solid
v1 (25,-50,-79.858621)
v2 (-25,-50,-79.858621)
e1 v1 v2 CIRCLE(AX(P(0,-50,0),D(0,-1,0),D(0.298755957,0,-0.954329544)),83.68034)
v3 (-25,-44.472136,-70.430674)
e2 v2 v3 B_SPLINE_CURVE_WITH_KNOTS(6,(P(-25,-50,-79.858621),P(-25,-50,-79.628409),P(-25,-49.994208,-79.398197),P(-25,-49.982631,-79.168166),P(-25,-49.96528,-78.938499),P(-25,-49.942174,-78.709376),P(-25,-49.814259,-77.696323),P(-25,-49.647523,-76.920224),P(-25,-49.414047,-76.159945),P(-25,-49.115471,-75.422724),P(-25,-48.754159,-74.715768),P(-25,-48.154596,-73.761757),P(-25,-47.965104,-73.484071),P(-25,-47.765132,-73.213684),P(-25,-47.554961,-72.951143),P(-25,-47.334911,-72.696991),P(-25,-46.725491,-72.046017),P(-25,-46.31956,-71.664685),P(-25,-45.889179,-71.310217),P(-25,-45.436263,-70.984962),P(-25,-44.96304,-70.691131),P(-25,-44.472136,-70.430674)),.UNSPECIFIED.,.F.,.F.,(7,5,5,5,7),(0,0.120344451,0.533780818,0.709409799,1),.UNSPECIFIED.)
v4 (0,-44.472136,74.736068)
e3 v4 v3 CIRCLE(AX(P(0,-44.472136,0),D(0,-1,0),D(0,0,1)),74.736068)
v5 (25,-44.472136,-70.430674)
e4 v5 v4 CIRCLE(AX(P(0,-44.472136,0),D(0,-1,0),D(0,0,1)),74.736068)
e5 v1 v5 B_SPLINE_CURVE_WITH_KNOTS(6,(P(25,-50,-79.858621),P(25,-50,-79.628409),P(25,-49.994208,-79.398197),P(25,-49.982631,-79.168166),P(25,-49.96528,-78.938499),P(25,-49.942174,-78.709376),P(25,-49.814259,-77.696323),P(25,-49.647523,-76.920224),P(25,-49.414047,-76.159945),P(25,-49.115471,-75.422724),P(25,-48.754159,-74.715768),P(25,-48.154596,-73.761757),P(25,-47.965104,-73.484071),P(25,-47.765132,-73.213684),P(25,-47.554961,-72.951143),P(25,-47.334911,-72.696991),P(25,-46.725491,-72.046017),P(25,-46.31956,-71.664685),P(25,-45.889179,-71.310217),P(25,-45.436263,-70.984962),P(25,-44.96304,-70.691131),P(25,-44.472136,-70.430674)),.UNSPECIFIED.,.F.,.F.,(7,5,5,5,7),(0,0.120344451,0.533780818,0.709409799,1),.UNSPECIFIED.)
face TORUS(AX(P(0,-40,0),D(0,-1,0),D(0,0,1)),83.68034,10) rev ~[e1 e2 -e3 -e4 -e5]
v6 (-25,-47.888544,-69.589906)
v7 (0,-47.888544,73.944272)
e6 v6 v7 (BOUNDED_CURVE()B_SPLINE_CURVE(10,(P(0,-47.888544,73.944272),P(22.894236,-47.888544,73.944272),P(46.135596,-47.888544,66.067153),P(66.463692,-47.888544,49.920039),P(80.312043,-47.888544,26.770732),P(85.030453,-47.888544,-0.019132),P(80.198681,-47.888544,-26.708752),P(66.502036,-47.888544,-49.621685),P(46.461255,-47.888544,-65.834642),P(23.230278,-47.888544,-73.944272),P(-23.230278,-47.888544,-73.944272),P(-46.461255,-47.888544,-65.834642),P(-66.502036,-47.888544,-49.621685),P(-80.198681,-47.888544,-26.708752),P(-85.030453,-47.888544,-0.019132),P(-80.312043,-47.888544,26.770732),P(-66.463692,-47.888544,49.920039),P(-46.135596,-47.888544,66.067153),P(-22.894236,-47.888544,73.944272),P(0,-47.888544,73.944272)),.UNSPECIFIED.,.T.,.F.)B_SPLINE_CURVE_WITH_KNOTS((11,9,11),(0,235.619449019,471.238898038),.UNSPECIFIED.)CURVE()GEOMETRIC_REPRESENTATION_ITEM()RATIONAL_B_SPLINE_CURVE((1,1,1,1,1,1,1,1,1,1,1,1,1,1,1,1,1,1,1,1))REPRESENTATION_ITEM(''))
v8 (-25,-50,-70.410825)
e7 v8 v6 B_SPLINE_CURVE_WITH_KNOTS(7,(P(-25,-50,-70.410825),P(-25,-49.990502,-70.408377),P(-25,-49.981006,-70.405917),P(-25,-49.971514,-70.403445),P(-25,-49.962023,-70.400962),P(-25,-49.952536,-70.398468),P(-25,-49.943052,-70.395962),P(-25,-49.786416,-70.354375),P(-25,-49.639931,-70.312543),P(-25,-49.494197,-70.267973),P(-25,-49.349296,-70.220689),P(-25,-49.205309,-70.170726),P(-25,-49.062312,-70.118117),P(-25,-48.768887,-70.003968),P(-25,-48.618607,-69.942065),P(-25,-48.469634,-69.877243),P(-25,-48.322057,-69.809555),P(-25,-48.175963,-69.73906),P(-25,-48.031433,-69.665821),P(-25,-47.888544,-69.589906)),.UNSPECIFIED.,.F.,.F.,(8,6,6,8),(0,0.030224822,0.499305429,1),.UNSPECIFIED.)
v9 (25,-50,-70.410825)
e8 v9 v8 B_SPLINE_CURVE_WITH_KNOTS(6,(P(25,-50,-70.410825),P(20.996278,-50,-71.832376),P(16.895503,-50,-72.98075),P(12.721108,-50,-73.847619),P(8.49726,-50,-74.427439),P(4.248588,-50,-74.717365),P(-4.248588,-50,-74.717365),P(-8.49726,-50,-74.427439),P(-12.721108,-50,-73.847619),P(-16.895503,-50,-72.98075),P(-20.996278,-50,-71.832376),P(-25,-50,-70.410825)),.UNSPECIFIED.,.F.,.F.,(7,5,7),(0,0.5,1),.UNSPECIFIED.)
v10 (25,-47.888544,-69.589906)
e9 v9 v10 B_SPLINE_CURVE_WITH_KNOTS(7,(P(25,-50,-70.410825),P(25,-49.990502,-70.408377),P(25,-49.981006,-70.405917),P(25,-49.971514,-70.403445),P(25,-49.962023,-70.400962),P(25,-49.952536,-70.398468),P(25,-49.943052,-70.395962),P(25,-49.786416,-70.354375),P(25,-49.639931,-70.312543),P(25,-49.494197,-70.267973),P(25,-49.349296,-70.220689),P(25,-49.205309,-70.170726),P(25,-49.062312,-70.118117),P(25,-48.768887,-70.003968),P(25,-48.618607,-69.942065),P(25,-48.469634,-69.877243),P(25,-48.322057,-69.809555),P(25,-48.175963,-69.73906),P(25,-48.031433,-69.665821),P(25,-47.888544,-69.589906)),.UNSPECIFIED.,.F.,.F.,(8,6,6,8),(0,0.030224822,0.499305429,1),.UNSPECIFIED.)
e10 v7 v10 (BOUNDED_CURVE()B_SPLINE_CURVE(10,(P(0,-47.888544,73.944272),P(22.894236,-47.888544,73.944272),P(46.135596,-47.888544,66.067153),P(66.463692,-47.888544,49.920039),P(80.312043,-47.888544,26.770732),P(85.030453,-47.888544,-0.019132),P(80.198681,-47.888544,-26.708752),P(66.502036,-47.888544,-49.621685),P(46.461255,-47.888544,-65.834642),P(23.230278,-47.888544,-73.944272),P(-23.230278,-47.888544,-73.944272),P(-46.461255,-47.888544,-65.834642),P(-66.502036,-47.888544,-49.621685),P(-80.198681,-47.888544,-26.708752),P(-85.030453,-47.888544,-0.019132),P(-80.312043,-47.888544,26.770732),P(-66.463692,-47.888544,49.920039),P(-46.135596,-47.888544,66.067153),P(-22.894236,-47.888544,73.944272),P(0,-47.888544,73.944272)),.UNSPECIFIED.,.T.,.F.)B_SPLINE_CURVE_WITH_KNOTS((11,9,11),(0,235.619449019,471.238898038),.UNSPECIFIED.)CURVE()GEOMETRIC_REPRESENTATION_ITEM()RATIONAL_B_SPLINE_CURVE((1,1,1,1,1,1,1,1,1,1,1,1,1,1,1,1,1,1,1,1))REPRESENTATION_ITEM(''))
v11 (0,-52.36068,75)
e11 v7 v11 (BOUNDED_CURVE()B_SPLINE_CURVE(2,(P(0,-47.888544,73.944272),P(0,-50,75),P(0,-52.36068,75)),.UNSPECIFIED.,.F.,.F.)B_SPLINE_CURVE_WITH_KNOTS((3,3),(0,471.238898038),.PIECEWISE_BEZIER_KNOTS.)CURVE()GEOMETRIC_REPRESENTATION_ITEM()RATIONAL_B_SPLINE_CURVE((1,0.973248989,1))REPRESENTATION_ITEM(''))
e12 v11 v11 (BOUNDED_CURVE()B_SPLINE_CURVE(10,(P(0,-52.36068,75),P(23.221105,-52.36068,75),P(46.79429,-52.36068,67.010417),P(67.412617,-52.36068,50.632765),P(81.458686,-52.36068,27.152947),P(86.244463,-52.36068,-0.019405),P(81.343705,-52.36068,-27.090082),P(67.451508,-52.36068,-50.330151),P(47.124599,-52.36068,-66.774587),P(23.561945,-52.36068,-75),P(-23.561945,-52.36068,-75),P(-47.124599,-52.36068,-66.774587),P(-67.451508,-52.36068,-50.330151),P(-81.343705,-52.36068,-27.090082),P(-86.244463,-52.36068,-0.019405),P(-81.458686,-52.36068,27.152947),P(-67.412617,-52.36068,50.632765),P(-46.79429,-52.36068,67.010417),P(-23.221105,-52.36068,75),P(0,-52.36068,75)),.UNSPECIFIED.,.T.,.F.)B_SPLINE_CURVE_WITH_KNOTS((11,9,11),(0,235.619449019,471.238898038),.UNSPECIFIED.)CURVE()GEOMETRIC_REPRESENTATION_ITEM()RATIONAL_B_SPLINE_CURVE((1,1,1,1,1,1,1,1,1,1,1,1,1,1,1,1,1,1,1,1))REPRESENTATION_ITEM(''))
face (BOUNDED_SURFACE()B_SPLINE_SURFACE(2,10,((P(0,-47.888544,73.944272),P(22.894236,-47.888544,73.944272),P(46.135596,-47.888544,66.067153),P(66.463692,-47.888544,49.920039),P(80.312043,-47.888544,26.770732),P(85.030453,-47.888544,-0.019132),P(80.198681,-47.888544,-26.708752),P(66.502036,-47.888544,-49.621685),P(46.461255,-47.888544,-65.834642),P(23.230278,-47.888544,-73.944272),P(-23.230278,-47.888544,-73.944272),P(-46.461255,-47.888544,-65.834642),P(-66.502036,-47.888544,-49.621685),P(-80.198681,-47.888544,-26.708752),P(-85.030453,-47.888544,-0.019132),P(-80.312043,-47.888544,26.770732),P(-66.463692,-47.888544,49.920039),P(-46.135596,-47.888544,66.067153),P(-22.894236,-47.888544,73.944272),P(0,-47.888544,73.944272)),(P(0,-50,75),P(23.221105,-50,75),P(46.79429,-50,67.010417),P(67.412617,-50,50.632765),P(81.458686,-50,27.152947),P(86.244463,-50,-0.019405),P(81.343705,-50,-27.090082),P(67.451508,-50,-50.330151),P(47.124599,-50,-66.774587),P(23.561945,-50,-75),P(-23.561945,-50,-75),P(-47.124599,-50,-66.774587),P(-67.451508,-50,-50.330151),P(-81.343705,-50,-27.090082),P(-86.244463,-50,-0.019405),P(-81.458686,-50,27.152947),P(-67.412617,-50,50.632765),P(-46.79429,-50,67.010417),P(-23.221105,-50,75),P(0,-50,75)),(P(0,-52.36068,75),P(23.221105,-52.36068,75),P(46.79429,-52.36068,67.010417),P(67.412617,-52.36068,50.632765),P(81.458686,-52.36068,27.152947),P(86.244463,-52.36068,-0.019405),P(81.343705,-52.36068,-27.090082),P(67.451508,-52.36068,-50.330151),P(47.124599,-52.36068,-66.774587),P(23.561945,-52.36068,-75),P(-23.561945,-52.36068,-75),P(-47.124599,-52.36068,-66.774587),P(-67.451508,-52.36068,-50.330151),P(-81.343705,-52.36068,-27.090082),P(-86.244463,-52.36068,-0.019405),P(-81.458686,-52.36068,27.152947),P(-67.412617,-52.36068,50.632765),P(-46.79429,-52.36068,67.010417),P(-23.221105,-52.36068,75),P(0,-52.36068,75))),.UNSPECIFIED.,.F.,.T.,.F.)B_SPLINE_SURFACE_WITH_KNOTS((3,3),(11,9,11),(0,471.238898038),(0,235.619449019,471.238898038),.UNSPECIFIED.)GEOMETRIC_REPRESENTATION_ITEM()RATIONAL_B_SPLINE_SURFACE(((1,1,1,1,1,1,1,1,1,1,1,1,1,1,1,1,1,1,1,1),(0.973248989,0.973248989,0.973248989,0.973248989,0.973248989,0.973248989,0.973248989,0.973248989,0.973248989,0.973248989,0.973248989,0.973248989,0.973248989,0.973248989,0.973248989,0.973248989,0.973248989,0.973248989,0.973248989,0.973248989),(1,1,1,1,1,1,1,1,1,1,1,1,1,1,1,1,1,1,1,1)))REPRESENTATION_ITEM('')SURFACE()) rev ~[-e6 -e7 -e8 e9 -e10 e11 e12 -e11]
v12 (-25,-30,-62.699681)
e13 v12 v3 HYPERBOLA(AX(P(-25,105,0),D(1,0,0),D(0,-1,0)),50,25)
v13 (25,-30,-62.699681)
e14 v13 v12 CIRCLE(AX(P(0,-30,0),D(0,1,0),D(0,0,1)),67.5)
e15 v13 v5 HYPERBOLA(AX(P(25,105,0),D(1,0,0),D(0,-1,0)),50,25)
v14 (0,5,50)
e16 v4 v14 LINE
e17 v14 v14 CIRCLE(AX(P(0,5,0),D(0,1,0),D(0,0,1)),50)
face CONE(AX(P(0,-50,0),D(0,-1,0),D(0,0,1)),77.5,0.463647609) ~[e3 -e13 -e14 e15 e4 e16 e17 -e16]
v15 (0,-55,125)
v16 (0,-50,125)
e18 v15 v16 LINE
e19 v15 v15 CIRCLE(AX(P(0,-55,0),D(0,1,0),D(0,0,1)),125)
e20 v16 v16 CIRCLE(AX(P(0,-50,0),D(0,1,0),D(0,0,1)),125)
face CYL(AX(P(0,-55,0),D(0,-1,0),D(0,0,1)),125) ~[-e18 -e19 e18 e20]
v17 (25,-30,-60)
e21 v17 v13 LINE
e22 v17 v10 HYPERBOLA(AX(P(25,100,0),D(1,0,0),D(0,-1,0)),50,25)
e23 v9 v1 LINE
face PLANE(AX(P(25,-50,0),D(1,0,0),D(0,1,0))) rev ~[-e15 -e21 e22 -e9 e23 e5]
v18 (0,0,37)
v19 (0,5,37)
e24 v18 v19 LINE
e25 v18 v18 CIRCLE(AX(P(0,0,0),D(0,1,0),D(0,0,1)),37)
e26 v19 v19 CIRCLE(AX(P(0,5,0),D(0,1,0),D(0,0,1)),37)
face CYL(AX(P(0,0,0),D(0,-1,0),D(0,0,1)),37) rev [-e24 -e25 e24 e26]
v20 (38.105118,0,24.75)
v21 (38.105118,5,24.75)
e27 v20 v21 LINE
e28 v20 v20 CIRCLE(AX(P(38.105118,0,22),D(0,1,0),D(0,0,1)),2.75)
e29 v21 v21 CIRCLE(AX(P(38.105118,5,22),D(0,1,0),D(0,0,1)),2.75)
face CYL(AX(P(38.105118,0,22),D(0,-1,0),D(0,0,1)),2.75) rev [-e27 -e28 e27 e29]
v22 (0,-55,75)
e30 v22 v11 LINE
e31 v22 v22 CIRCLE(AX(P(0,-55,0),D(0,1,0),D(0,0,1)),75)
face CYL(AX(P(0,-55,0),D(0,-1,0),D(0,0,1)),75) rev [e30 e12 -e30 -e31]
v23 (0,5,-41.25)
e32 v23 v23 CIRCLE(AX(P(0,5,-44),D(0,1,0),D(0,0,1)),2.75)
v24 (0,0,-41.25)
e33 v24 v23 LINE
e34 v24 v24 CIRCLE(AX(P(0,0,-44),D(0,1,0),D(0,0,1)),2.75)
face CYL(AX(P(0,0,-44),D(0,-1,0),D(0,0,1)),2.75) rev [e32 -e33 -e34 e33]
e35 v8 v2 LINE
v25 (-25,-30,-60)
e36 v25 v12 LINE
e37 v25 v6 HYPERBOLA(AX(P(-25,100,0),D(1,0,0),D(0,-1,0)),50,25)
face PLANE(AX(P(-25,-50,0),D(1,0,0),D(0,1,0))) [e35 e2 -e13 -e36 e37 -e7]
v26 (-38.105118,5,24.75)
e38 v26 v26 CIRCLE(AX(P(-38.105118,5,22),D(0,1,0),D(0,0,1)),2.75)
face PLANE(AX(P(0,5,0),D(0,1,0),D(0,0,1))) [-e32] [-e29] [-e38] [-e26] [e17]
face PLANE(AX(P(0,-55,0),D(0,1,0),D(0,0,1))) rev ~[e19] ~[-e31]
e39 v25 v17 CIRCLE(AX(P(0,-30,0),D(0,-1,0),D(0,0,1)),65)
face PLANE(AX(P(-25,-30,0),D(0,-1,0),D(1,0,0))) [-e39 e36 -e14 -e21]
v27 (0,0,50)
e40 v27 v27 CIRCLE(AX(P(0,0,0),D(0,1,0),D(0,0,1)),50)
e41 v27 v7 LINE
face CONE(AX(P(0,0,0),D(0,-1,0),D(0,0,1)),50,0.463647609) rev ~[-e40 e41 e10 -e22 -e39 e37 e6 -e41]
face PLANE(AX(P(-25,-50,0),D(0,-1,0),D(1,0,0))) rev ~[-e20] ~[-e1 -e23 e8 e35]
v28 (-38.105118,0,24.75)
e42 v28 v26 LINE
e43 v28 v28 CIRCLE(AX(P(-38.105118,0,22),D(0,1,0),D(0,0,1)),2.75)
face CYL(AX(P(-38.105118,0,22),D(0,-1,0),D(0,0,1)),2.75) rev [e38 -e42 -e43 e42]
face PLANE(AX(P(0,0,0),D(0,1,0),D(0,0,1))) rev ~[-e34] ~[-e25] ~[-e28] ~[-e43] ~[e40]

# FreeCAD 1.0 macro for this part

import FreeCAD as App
import Part
import Sketcher
from FreeCAD import Vector


def edges_at(feature, points):
    """Names of the edges that pass closest to the given points."""
    edges = feature.Shape.Edges
    near = lambda p: min(range(len(edges)), key=lambda i: edges[i].distToShape(Part.Vertex(*p))[0])
    return sorted({f"Edge{near(p) + 1}" for p in points})

doc = App.newDocument("Part")
body = doc.addObject("PartDesign::Body", "Body")

# Sketch on XZ plane
sketch1 = body.newObject("Sketcher::SketchObject", "Sketch")
sketch1.AttachmentSupport = (doc.getObject("XZ_Plane"), [""])
sketch1.MapMode = "FlatFace"
sketch1.addGeometry([
    Part.Circle(Vector(0, 0, 0), Vector(0, 0, 1), 50),  # 0
    Part.Circle(Vector(0, -44, 0), Vector(0, 0, 1), 2.8),  # 1
    Part.Circle(Vector(-38.1, 22, 0), Vector(0, 0, 1), 2.8),  # 2
    Part.Circle(Vector(0, 0, 0), Vector(0, 0, 1), 37),  # 3
    Part.Circle(Vector(38.1, 22, 0), Vector(0, 0, 1), 2.8),  # 4
], False)
sketch1.addConstraint([
    Sketcher.Constraint("Coincident", 0, 3, -1, 1),
    Sketcher.Constraint("Coincident", 3, 3, -1, 1),
    Sketcher.Constraint("Equal", 1, 2),
    Sketcher.Constraint("Equal", 2, 4),
    Sketcher.Constraint("Symmetric", 2, 3, 4, 3, -2),
    Sketcher.Constraint("PointOnObject", 1, 3, -2),
    Sketcher.Constraint("Diameter", 0, 100.0),
    Sketcher.Constraint("Diameter", 3, 74.0),
    Sketcher.Constraint("Diameter", 1, 5.5),
    Sketcher.Constraint("DistanceY", 1, 3, -1, 1, 44.0),
    Sketcher.Constraint("DistanceY", -1, 1, 2, 3, 22.0),
    Sketcher.Constraint("DistanceX", 2, 3, -1, 1, 38.105118),
])
pad1 = body.newObject("PartDesign::Pad", "Pad")
pad1.Profile = sketch1
pad1.Length = 5
pad1.Reversed = True
body2 = doc.addObject("PartDesign::Body", "Body001")

# Sketch on XZ plane
sketch2 = body2.newObject("Sketcher::SketchObject", "Sketch001")
sketch2.AttachmentSupport = (doc.getObject("XZ_Plane001"), [""])
sketch2.MapMode = "FlatFace"
sketch2.AttachmentOffset = App.Placement(Vector(0, 0, 55), App.Rotation())
sketch2.addGeometry([
    Part.Circle(Vector(0, 0, 0), Vector(0, 0, 1), 125),
    Part.Circle(Vector(0, 0, 0), Vector(0, 0, 1), 75),
], False)
sketch2.addConstraint([
    Sketcher.Constraint("Coincident", 0, 3, -1, 1),
    Sketcher.Constraint("Coincident", 1, 3, -1, 1),
    Sketcher.Constraint("Diameter", 0, 250.0),
    Sketcher.Constraint("Diameter", 1, 150.0),
])
pad2 = body2.newObject("PartDesign::Pad", "Pad001")
pad2.Profile = sketch2
pad2.Length = 5
pad2.Reversed = True
body.AllowCompound = True
doc.recompute()

boolean = body.newObject("PartDesign::Boolean", "Boolean")
boolean.Type = "Fuse"
boolean.addObjects([body2])

# Sketch on XY plane
sketch3 = body.newObject("Sketcher::SketchObject", "Sketch002")
sketch3.AttachmentSupport = (doc.getObject("XY_Plane"), [""])
sketch3.MapMode = "FlatFace"
sketch3.addGeometry([
    Part.LineSegment(Vector(-75, -50, 0), Vector(-50, 0, 0)),
    Part.LineSegment(Vector(-50, 0, 0), Vector(-50, 5, 0)),
    Part.LineSegment(Vector(-50, 5, 0), Vector(-77.5, -50, 0)),
    Part.LineSegment(Vector(-77.5, -50, 0), Vector(-75, -50, 0)),
], False)
sketch3.addConstraint([
    Sketcher.Constraint("Coincident", 0, 2, 1, 1),
    Sketcher.Constraint("Coincident", 1, 2, 2, 1),
    Sketcher.Constraint("Coincident", 2, 2, 3, 1),
    Sketcher.Constraint("Coincident", 3, 2, 0, 1),
    Sketcher.Constraint("Vertical", 1),
    Sketcher.Constraint("Horizontal", 3),
    Sketcher.Constraint("PointOnObject", 0, 2, -1),
    Sketcher.Constraint("Parallel", 0, 2),
    Sketcher.Constraint("DistanceY", 1, 1, 1, 2, 5.0),
    Sketcher.Constraint("DistanceX", 3, 1, 3, 2, 2.5),
    Sketcher.Constraint("DistanceX", 0, 2, -1, 1, 50.0),
    Sketcher.Constraint("DistanceY", 2, 2, -1, 1, 50.0),
])
revolution = body.newObject("PartDesign::Revolution", "Revolution")
revolution.Profile = sketch3
revolution.ReferenceAxis = (sketch3, ["V_Axis"])
revolution.Angle = 360
doc.recompute()

fillet = body.newObject("PartDesign::Fillet", "Fillet")
fillet.Base = (revolution, edges_at(revolution, [(0, -50, -75), (0, -50, -77.5)]))
fillet.Radius = 10

# Sketch on XY plane
sketch4 = body.newObject("Sketcher::SketchObject", "Sketch003")
sketch4.AttachmentSupport = (doc.getObject("XY_Plane"), [""])
sketch4.MapMode = "FlatFace"
sketch4.addGeometry([
    Part.LineSegment(Vector(-25, -30, 0), Vector(-25, -50, 0)),
    Part.LineSegment(Vector(-25, -50, 0), Vector(25, -50, 0)),
    Part.LineSegment(Vector(25, -50, 0), Vector(25, -30, 0)),
    Part.LineSegment(Vector(25, -30, 0), Vector(-25, -30, 0)),
], False)
sketch4.addConstraint([
    Sketcher.Constraint("Coincident", 0, 2, 1, 1),
    Sketcher.Constraint("Coincident", 1, 2, 2, 1),
    Sketcher.Constraint("Coincident", 2, 2, 3, 1),
    Sketcher.Constraint("Coincident", 3, 2, 0, 1),
    Sketcher.Constraint("Vertical", 0),
    Sketcher.Constraint("Horizontal", 1),
    Sketcher.Constraint("Vertical", 2),
    Sketcher.Constraint("Horizontal", 3),
    Sketcher.Constraint("DistanceX", 1, 1, 1, 2, 50.0),
    Sketcher.Constraint("DistanceY", 0, 2, 0, 1, 20.0),
    Sketcher.Constraint("DistanceX", 0, 2, -1, 1, 25.0),
    Sketcher.Constraint("DistanceY", 0, 2, -1, 1, 50.0),
])
pocket1 = body.newObject("PartDesign::Pocket", "Pocket")
pocket1.Profile = sketch4
pocket1.Type = "ThroughAll"

doc.recompute()
